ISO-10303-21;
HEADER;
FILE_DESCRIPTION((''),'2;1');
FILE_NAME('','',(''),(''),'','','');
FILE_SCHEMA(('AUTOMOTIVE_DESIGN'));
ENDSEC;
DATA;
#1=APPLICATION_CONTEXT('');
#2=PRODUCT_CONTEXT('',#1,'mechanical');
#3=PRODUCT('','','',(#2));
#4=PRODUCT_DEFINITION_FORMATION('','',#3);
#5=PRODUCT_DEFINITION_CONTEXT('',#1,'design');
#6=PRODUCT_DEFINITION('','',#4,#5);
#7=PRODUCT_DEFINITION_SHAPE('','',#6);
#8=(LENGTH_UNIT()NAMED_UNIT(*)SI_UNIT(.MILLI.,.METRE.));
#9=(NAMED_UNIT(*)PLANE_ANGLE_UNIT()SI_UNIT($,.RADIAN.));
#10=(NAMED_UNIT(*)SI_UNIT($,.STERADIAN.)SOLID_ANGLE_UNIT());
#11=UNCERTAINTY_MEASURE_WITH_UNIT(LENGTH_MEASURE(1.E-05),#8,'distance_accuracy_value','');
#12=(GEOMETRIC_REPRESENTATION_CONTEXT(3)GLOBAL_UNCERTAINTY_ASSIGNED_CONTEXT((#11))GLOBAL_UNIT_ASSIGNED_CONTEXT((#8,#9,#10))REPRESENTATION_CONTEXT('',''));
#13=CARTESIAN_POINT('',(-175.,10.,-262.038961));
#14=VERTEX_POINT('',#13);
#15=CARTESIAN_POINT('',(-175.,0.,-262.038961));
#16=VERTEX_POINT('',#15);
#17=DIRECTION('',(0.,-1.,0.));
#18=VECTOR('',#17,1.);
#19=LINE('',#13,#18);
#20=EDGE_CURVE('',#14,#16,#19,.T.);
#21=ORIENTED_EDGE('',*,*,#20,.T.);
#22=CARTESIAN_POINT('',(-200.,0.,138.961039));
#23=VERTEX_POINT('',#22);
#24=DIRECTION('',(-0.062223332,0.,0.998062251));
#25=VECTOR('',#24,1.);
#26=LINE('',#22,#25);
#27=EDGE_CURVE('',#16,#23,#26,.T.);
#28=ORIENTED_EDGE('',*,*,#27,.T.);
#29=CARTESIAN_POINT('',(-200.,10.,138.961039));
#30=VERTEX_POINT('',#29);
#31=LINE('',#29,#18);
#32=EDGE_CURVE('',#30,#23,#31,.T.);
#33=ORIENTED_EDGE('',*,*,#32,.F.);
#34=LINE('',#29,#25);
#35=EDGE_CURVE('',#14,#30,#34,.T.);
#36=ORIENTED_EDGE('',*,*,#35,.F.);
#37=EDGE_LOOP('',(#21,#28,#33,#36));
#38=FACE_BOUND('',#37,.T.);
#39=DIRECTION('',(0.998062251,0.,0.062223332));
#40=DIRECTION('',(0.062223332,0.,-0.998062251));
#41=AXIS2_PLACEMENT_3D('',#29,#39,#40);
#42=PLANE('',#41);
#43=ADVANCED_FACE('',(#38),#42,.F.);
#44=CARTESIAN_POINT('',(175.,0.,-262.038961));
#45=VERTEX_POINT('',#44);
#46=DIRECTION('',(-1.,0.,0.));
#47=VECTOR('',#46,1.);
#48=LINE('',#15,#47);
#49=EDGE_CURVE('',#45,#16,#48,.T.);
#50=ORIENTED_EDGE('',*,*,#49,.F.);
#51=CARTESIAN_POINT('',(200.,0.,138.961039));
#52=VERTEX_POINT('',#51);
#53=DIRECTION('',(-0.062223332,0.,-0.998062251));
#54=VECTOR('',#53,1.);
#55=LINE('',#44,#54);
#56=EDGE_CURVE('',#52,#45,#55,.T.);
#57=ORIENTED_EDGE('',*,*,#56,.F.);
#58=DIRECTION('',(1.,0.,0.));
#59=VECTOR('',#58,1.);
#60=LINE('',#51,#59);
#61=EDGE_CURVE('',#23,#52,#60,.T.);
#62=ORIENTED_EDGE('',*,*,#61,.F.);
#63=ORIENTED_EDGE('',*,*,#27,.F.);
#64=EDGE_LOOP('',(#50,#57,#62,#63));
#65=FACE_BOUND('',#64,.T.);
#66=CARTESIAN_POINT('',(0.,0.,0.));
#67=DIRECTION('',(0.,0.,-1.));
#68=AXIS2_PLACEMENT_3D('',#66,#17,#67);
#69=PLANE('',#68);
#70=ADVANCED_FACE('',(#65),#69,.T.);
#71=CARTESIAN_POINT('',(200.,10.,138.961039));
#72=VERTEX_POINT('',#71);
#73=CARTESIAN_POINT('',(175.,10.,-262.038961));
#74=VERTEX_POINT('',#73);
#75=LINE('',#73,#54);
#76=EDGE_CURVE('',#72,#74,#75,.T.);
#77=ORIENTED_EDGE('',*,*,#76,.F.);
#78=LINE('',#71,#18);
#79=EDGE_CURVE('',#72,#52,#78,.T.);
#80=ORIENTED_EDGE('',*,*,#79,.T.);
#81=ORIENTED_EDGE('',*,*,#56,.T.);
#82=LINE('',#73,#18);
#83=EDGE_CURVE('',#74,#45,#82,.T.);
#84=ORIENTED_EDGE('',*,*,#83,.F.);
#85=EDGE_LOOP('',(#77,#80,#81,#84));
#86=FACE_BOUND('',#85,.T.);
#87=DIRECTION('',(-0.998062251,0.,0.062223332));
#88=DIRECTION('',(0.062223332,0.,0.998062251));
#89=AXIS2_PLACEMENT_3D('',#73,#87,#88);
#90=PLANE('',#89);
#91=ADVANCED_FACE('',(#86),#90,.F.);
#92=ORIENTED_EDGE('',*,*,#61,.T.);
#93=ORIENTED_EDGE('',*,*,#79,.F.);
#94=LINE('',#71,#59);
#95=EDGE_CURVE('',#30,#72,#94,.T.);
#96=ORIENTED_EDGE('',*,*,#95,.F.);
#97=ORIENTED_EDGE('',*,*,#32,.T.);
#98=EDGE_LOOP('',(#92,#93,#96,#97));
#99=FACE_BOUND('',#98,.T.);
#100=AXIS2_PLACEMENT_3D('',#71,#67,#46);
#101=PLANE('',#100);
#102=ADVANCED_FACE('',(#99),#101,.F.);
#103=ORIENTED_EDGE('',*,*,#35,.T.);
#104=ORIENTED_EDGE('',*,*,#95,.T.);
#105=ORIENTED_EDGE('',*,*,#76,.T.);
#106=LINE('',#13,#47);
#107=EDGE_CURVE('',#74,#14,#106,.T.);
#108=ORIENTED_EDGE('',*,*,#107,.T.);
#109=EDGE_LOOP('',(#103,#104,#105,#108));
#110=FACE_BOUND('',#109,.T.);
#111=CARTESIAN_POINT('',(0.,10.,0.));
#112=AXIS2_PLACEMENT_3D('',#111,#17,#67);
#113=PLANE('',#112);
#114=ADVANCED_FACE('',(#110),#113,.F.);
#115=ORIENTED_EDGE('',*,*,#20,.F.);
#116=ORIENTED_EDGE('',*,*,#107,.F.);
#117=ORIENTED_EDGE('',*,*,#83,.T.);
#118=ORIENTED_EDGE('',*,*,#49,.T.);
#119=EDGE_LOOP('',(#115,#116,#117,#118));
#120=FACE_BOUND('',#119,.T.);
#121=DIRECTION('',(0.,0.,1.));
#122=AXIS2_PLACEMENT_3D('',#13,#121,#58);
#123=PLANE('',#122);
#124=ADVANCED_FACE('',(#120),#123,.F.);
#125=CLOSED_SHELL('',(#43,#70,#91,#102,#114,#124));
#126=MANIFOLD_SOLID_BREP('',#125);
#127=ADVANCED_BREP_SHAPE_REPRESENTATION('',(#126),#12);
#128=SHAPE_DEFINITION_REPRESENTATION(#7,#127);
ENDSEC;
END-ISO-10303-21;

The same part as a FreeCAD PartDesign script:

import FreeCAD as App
import Part
import Sketcher

V = App.Vector
Q = App.Units.Quantity


def add_polygon(sketch, points):
    """Adds a closed chain of lines whose ends are joined by coincident constraints."""
    first, n = sketch.GeometryCount, len(points)
    for a, b in zip(points, points[1:] + points[:1]):
        sketch.addGeometry(Part.LineSegment(App.Vector(*a, 0), App.Vector(*b, 0)), False)
    for i in range(n):
        sketch.addConstraint(Sketcher.Constraint("Coincident", first + i, 2, first + (i + 1) % n, 1))

doc = App.newDocument("Part")
body = doc.addObject("PartDesign::Body", "Body")

sketch1 = body.newObject("Sketcher::SketchObject", "Sketch")
sketch1.AttachmentSupport = (doc.getObject("XZ_Plane"), [""])
sketch1.MapMode = "FlatFace"
add_polygon(sketch1, [(-175, -262.038961), (-200, 138.961039), (200, 138.961039), (175, -262.038961)])
sketch1.addConstraint([
    Sketcher.Constraint("Horizontal", 1),
    Sketcher.Constraint("Horizontal", 3),
    Sketcher.Constraint("Equal", 0, 2),
    Sketcher.Constraint("DistanceX", 1, 1, 1, 2, Q("400 mm")),
    Sketcher.Constraint("DistanceX", 3, 2, 3, 1, Q("350 mm")),
    Sketcher.Constraint("DistanceX", 0, 2, -1, 1, Q("200 mm")),
    Sketcher.Constraint("DistanceY", 2, 2, 1, 2, Q("401 mm")),
    Sketcher.Constraint("DistanceY", -1, 1, 0, 2, Q("138.961039 mm")),
])
pad1 = body.newObject("PartDesign::Pad", "Pad")
pad1.Profile = sketch1
pad1.Length = 10
pad1.Reversed = True

doc.recompute()
